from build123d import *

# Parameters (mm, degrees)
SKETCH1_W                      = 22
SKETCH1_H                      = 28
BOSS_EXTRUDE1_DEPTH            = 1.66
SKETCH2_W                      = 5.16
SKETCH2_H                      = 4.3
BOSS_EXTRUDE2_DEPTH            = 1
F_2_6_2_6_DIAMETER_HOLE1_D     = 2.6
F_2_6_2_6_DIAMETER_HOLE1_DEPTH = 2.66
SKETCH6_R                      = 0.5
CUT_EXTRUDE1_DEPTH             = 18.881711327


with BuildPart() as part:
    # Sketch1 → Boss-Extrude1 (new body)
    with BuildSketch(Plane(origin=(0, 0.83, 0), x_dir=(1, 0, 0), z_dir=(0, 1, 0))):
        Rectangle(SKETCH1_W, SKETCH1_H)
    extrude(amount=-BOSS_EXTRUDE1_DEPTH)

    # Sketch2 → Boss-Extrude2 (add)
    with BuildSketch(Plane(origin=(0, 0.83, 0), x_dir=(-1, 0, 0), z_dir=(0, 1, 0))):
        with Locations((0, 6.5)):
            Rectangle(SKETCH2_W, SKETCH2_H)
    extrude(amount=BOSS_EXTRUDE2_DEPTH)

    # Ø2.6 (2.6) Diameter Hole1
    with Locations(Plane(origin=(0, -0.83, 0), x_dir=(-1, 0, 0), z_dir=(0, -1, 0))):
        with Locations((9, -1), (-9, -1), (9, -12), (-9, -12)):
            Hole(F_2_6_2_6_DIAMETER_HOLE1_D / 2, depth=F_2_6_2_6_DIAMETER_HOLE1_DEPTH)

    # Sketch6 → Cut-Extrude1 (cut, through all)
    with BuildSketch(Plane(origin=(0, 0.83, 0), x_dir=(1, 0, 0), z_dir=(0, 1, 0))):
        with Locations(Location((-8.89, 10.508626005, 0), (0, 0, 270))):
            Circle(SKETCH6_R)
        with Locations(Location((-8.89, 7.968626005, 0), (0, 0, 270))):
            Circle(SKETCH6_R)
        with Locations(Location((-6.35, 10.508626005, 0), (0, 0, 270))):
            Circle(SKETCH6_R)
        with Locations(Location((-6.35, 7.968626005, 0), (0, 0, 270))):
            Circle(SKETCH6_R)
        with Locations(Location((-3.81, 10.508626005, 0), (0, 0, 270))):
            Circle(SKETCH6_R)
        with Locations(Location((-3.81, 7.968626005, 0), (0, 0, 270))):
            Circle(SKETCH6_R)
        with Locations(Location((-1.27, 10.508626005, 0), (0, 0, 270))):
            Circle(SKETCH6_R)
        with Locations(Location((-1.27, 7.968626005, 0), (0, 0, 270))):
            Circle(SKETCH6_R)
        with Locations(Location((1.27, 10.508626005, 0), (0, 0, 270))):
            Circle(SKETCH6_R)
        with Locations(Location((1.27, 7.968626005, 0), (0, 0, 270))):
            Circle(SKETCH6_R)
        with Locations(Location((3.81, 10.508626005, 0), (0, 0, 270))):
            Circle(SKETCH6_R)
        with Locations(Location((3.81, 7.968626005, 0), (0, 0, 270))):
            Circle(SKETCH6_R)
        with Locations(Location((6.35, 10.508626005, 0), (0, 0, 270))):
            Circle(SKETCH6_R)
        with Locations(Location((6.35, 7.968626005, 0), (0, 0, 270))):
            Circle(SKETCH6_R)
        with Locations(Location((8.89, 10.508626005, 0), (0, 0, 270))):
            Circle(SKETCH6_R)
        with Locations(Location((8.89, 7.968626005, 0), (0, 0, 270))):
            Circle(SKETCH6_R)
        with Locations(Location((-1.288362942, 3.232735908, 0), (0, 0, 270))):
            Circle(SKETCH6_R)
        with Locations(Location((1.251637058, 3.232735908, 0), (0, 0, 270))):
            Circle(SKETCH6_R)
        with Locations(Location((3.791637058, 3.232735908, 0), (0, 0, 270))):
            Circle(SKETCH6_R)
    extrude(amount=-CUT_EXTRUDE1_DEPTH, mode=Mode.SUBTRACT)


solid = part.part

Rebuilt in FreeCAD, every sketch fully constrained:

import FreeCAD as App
import Part
import Sketcher
from FreeCAD import Vector
Q = App.Units.Quantity


def add_polygon(sketch, points):
    """Adds a closed chain of lines whose ends are joined by coincident constraints."""
    first, n = sketch.GeometryCount, len(points)
    for a, b in zip(points, points[1:] + points[:1]):
        sketch.addGeometry(Part.LineSegment(App.Vector(*a, 0), App.Vector(*b, 0)), False)
    for i in range(n):
        sketch.addConstraint(Sketcher.Constraint("Coincident", first + i, 2, first + (i + 1) % n, 1))

doc = App.newDocument("Part")
body = doc.addObject("PartDesign::Body", "Body")

# Sketch on XZ plane
sketch1 = body.newObject("Sketcher::SketchObject", "Sketch")
sketch1.AttachmentSupport = (doc.getObject("XZ_Plane"), [""])
sketch1.MapMode = "FlatFace"
sketch1.AttachmentOffset = App.Placement(Vector(0, 0, -0.83), App.Rotation())
add_polygon(sketch1, [(-11, -14), (-11, 14), (11, 14), (11, -14)])  # lines 0-3
sketch1.addConstraint(Sketcher.Constraint("Vertical", 0))
sketch1.addConstraint(Sketcher.Constraint("Horizontal", 1))
sketch1.addConstraint(Sketcher.Constraint("Vertical", 2))
sketch1.addConstraint(Sketcher.Constraint("Horizontal", 3))
sketch1.addConstraint(Sketcher.Constraint("Symmetric", 0, 2, 2, 2, -1, 1))
sketch1.addConstraint(Sketcher.Constraint("DistanceX", 1, 1, 1, 2, Q("22 mm")))
sketch1.addConstraint(Sketcher.Constraint("DistanceY", 0, 1, 0, 2, Q("28 mm")))
pad1 = body.newObject("PartDesign::Pad", "Pad")
pad1.Profile = sketch1
pad1.Length = 1.66

# Sketch on XZ plane
sketch2 = body.newObject("Sketcher::SketchObject", "Sketch001")
sketch2.AttachmentSupport = (doc.getObject("XZ_Plane"), [""])
sketch2.MapMode = "FlatFace"
sketch2.AttachmentOffset = App.Placement(Vector(0, 0, -0.83), App.Rotation())
add_polygon(sketch2, [(2.6, 8.7), (2.6, 4.3), (-2.6, 4.3), (-2.6, 8.7)])  # lines 0-3
sketch2.addConstraint(Sketcher.Constraint("Vertical", 0))
sketch2.addConstraint(Sketcher.Constraint("Horizontal", 1))
sketch2.addConstraint(Sketcher.Constraint("Vertical", 2))
sketch2.addConstraint(Sketcher.Constraint("Horizontal", 3))
sketch2.addConstraint(Sketcher.Constraint("DistanceY", 0, 2, 0, 1, Q("4.3 mm")))
sketch2.addConstraint(Sketcher.Constraint("DistanceX", 1, 2, 1, 1, Q("5.16 mm")))
sketch2.addConstraint(Sketcher.Constraint("DistanceX", -1, 1, 0, 2, Q("2.58 mm")))
sketch2.addConstraint(Sketcher.Constraint("DistanceY", -1, 1, 0, 2, Q("4.35 mm")))
pad2 = body.newObject("PartDesign::Pad", "Pad001")
pad2.Profile = sketch2
pad2.Length = 1
pad2.Reversed = True

# Sketch on XZ plane
sketch3 = body.newObject("Sketcher::SketchObject", "Sketch002")
sketch3.AttachmentSupport = (doc.getObject("XZ_Plane"), [""])
sketch3.MapMode = "FlatFace"
sketch3.AttachmentOffset = App.Placement(Vector(0, 0, 0.83), App.Rotation())
sketch3.addGeometry(Part.Circle(Vector(-9, 1, 0), Vector(0, 0, 1), 1.3), False)
sketch3.addGeometry(Part.Circle(Vector(9, 1, 0), Vector(0, 0, 1), 1.3), False)
sketch3.addGeometry(Part.Circle(Vector(-9, 12, 0), Vector(0, 0, 1), 1.3), False)
sketch3.addGeometry(Part.Circle(Vector(9, 12, 0), Vector(0, 0, 1), 1.3), False)
sketch3.addConstraint(Sketcher.Constraint("Equal", 0, 1))
sketch3.addConstraint(Sketcher.Constraint("Equal", 1, 2))
sketch3.addConstraint(Sketcher.Constraint("Equal", 2, 3))
sketch3.addConstraint(Sketcher.Constraint("Symmetric", 0, 3, 1, 3, -2))
sketch3.addConstraint(Sketcher.Constraint("Symmetric", 2, 3, 3, 3, -2))
sketch3.addConstraint(Sketcher.Constraint("Vertical", 0, 3, 2, 3))
sketch3.addConstraint(Sketcher.Constraint("Diameter", 0, Q("2.6 mm")))
sketch3.addConstraint(Sketcher.Constraint("DistanceX", 0, 3, -1, 1, Q("9 mm")))
sketch3.addConstraint(Sketcher.Constraint("DistanceY", -1, 1, 0, 3, Q("1 mm")))
sketch3.addConstraint(Sketcher.Constraint("DistanceY", -1, 1, 2, 3, Q("12 mm")))
doc.recompute()
hole = body.newObject("PartDesign::Hole", "Hole")
hole.Profile = sketch3
hole.ThreadType = "None"
hole.Diameter = 2.6
hole.DepthType = "Dimension"
hole.Depth = 2.66
hole.DrillPoint = "Flat"

# Sketch on XZ plane
sketch4 = body.newObject("Sketcher::SketchObject", "Sketch003")
sketch4.AttachmentSupport = (doc.getObject("XZ_Plane"), [""])
sketch4.MapMode = "FlatFace"
sketch4.AttachmentOffset = App.Placement(Vector(0, 0, -0.83), App.Rotation())
sketch4.addGeometry(Part.Circle(Vector(-8.9, -10.5, 0), Vector(0, 0, 1), 0.5), False)
sketch4.addGeometry(Part.Circle(Vector(-8.9, -8, 0), Vector(0, 0, 1), 0.5), False)
sketch4.addGeometry(Part.Circle(Vector(-6.3, -10.5, 0), Vector(0, 0, 1), 0.5), False)
sketch4.addGeometry(Part.Circle(Vector(-6.3, -8, 0), Vector(0, 0, 1), 0.5), False)
sketch4.addGeometry(Part.Circle(Vector(-3.8, -10.5, 0), Vector(0, 0, 1), 0.5), False)
sketch4.addGeometry(Part.Circle(Vector(-3.8, -8, 0), Vector(0, 0, 1), 0.5), False)
sketch4.addGeometry(Part.Circle(Vector(-1.3, -10.5, 0), Vector(0, 0, 1), 0.5), False)
sketch4.addGeometry(Part.Circle(Vector(-1.3, -8, 0), Vector(0, 0, 1), 0.5), False)
sketch4.addGeometry(Part.Circle(Vector(1.3, -10.5, 0), Vector(0, 0, 1), 0.5), False)
sketch4.addGeometry(Part.Circle(Vector(1.3, -8, 0), Vector(0, 0, 1), 0.5), False)
sketch4.addGeometry(Part.Circle(Vector(3.8, -10.5, 0), Vector(0, 0, 1), 0.5), False)
sketch4.addGeometry(Part.Circle(Vector(3.8, -8, 0), Vector(0, 0, 1), 0.5), False)
sketch4.addGeometry(Part.Circle(Vector(6.3, -10.5, 0), Vector(0, 0, 1), 0.5), False)
sketch4.addGeometry(Part.Circle(Vector(6.3, -8, 0), Vector(0, 0, 1), 0.5), False)
sketch4.addGeometry(Part.Circle(Vector(8.9, -10.5, 0), Vector(0, 0, 1), 0.5), False)
sketch4.addGeometry(Part.Circle(Vector(8.9, -8, 0), Vector(0, 0, 1), 0.5), False)
sketch4.addGeometry(Part.Circle(Vector(-1.3, -3.2, 0), Vector(0, 0, 1), 0.5), False)
sketch4.addGeometry(Part.Circle(Vector(1.3, -3.2, 0), Vector(0, 0, 1), 0.5), False)
sketch4.addGeometry(Part.Circle(Vector(3.8, -3.2, 0), Vector(0, 0, 1), 0.5), False)
sketch4.addConstraint(Sketcher.Constraint("Equal", 0, 1))
sketch4.addConstraint(Sketcher.Constraint("Equal", 1, 2))
sketch4.addConstraint(Sketcher.Constraint("Equal", 2, 3))
sketch4.addConstraint(Sketcher.Constraint("Equal", 3, 4))
sketch4.addConstraint(Sketcher.Constraint("Equal", 4, 5))
sketch4.addConstraint(Sketcher.Constraint("Equal", 5, 6))
sketch4.addConstraint(Sketcher.Constraint("Equal", 6, 7))
sketch4.addConstraint(Sketcher.Constraint("Equal", 7, 8))
sketch4.addConstraint(Sketcher.Constraint("Equal", 8, 9))
sketch4.addConstraint(Sketcher.Constraint("Equal", 9, 10))
sketch4.addConstraint(Sketcher.Constraint("Equal", 10, 11))
sketch4.addConstraint(Sketcher.Constraint("Equal", 11, 12))
sketch4.addConstraint(Sketcher.Constraint("Equal", 12, 13))
sketch4.addConstraint(Sketcher.Constraint("Equal", 13, 14))
sketch4.addConstraint(Sketcher.Constraint("Equal", 14, 15))
sketch4.addConstraint(Sketcher.Constraint("Equal", 15, 16))
sketch4.addConstraint(Sketcher.Constraint("Equal", 16, 17))
sketch4.addConstraint(Sketcher.Constraint("Equal", 17, 18))
sketch4.addConstraint(Sketcher.Constraint("Symmetric", 6, 3, 8, 3, -2))
sketch4.addConstraint(Sketcher.Constraint("Symmetric", 7, 3, 9, 3, -2))
sketch4.addConstraint(Sketcher.Constraint("Symmetric", 4, 3, 10, 3, -2))
sketch4.addConstraint(Sketcher.Constraint("Symmetric", 5, 3, 11, 3, -2))
sketch4.addConstraint(Sketcher.Constraint("Symmetric", 2, 3, 12, 3, -2))
sketch4.addConstraint(Sketcher.Constraint("Symmetric", 3, 3, 13, 3, -2))
sketch4.addConstraint(Sketcher.Constraint("Symmetric", 0, 3, 14, 3, -2))
sketch4.addConstraint(Sketcher.Constraint("Symmetric", 1, 3, 15, 3, -2))
sketch4.addConstraint(Sketcher.Constraint("Horizontal", 0, 3, 2, 3))
sketch4.addConstraint(Sketcher.Constraint("Horizontal", 1, 3, 3, 3))
sketch4.addConstraint(Sketcher.Constraint("Horizontal", 2, 3, 4, 3))
sketch4.addConstraint(Sketcher.Constraint("Horizontal", 3, 3, 5, 3))
sketch4.addConstraint(Sketcher.Constraint("Horizontal", 4, 3, 6, 3))
sketch4.addConstraint(Sketcher.Constraint("Horizontal", 5, 3, 7, 3))
sketch4.addConstraint(Sketcher.Constraint("Horizontal", 16, 3, 17, 3))
sketch4.addConstraint(Sketcher.Constraint("Horizontal", 17, 3, 18, 3))
sketch4.addConstraint(Sketcher.Constraint("Vertical", 0, 3, 1, 3))
sketch4.addConstraint(Sketcher.Constraint("Vertical", 2, 3, 3, 3))
sketch4.addConstraint(Sketcher.Constraint("Vertical", 4, 3, 5, 3))
sketch4.addConstraint(Sketcher.Constraint("Vertical", 6, 3, 7, 3))
sketch4.addConstraint(Sketcher.Constraint("Diameter", 0, Q("1 mm")))
sketch4.addConstraint(Sketcher.Constraint("DistanceX", 0, 3, -1, 1, Q("8.89 mm")))
sketch4.addConstraint(Sketcher.Constraint("DistanceX", 2, 3, -1, 1, Q("6.35 mm")))
sketch4.addConstraint(Sketcher.Constraint("DistanceX", 4, 3, -1, 1, Q("3.81 mm")))
sketch4.addConstraint(Sketcher.Constraint("DistanceX", 6, 3, -1, 1, Q("1.27 mm")))
sketch4.addConstraint(Sketcher.Constraint("DistanceY", 0, 3, 1, 3, Q("2.54 mm")))
sketch4.addConstraint(Sketcher.Constraint("DistanceX", 16, 3, 17, 3, Q("2.54 mm")))
sketch4.addConstraint(Sketcher.Constraint("DistanceX", 17, 3, 18, 3, Q("2.54 mm")))
sketch4.addConstraint(Sketcher.Constraint("DistanceY", 7, 3, 16, 3, Q("4.73589 mm")))
sketch4.addConstraint(Sketcher.Constraint("DistanceY", 0, 3, -1, 1, Q("10.508626 mm")))
sketch4.addConstraint(Sketcher.Constraint("DistanceX", 16, 3, -1, 1, Q("1.288363 mm")))
pocket1 = body.newObject("PartDesign::Pocket", "Pocket")
pocket1.Profile = sketch4
pocket1.Type = "ThroughAll"
pocket1.Reversed = True

doc.recompute()
